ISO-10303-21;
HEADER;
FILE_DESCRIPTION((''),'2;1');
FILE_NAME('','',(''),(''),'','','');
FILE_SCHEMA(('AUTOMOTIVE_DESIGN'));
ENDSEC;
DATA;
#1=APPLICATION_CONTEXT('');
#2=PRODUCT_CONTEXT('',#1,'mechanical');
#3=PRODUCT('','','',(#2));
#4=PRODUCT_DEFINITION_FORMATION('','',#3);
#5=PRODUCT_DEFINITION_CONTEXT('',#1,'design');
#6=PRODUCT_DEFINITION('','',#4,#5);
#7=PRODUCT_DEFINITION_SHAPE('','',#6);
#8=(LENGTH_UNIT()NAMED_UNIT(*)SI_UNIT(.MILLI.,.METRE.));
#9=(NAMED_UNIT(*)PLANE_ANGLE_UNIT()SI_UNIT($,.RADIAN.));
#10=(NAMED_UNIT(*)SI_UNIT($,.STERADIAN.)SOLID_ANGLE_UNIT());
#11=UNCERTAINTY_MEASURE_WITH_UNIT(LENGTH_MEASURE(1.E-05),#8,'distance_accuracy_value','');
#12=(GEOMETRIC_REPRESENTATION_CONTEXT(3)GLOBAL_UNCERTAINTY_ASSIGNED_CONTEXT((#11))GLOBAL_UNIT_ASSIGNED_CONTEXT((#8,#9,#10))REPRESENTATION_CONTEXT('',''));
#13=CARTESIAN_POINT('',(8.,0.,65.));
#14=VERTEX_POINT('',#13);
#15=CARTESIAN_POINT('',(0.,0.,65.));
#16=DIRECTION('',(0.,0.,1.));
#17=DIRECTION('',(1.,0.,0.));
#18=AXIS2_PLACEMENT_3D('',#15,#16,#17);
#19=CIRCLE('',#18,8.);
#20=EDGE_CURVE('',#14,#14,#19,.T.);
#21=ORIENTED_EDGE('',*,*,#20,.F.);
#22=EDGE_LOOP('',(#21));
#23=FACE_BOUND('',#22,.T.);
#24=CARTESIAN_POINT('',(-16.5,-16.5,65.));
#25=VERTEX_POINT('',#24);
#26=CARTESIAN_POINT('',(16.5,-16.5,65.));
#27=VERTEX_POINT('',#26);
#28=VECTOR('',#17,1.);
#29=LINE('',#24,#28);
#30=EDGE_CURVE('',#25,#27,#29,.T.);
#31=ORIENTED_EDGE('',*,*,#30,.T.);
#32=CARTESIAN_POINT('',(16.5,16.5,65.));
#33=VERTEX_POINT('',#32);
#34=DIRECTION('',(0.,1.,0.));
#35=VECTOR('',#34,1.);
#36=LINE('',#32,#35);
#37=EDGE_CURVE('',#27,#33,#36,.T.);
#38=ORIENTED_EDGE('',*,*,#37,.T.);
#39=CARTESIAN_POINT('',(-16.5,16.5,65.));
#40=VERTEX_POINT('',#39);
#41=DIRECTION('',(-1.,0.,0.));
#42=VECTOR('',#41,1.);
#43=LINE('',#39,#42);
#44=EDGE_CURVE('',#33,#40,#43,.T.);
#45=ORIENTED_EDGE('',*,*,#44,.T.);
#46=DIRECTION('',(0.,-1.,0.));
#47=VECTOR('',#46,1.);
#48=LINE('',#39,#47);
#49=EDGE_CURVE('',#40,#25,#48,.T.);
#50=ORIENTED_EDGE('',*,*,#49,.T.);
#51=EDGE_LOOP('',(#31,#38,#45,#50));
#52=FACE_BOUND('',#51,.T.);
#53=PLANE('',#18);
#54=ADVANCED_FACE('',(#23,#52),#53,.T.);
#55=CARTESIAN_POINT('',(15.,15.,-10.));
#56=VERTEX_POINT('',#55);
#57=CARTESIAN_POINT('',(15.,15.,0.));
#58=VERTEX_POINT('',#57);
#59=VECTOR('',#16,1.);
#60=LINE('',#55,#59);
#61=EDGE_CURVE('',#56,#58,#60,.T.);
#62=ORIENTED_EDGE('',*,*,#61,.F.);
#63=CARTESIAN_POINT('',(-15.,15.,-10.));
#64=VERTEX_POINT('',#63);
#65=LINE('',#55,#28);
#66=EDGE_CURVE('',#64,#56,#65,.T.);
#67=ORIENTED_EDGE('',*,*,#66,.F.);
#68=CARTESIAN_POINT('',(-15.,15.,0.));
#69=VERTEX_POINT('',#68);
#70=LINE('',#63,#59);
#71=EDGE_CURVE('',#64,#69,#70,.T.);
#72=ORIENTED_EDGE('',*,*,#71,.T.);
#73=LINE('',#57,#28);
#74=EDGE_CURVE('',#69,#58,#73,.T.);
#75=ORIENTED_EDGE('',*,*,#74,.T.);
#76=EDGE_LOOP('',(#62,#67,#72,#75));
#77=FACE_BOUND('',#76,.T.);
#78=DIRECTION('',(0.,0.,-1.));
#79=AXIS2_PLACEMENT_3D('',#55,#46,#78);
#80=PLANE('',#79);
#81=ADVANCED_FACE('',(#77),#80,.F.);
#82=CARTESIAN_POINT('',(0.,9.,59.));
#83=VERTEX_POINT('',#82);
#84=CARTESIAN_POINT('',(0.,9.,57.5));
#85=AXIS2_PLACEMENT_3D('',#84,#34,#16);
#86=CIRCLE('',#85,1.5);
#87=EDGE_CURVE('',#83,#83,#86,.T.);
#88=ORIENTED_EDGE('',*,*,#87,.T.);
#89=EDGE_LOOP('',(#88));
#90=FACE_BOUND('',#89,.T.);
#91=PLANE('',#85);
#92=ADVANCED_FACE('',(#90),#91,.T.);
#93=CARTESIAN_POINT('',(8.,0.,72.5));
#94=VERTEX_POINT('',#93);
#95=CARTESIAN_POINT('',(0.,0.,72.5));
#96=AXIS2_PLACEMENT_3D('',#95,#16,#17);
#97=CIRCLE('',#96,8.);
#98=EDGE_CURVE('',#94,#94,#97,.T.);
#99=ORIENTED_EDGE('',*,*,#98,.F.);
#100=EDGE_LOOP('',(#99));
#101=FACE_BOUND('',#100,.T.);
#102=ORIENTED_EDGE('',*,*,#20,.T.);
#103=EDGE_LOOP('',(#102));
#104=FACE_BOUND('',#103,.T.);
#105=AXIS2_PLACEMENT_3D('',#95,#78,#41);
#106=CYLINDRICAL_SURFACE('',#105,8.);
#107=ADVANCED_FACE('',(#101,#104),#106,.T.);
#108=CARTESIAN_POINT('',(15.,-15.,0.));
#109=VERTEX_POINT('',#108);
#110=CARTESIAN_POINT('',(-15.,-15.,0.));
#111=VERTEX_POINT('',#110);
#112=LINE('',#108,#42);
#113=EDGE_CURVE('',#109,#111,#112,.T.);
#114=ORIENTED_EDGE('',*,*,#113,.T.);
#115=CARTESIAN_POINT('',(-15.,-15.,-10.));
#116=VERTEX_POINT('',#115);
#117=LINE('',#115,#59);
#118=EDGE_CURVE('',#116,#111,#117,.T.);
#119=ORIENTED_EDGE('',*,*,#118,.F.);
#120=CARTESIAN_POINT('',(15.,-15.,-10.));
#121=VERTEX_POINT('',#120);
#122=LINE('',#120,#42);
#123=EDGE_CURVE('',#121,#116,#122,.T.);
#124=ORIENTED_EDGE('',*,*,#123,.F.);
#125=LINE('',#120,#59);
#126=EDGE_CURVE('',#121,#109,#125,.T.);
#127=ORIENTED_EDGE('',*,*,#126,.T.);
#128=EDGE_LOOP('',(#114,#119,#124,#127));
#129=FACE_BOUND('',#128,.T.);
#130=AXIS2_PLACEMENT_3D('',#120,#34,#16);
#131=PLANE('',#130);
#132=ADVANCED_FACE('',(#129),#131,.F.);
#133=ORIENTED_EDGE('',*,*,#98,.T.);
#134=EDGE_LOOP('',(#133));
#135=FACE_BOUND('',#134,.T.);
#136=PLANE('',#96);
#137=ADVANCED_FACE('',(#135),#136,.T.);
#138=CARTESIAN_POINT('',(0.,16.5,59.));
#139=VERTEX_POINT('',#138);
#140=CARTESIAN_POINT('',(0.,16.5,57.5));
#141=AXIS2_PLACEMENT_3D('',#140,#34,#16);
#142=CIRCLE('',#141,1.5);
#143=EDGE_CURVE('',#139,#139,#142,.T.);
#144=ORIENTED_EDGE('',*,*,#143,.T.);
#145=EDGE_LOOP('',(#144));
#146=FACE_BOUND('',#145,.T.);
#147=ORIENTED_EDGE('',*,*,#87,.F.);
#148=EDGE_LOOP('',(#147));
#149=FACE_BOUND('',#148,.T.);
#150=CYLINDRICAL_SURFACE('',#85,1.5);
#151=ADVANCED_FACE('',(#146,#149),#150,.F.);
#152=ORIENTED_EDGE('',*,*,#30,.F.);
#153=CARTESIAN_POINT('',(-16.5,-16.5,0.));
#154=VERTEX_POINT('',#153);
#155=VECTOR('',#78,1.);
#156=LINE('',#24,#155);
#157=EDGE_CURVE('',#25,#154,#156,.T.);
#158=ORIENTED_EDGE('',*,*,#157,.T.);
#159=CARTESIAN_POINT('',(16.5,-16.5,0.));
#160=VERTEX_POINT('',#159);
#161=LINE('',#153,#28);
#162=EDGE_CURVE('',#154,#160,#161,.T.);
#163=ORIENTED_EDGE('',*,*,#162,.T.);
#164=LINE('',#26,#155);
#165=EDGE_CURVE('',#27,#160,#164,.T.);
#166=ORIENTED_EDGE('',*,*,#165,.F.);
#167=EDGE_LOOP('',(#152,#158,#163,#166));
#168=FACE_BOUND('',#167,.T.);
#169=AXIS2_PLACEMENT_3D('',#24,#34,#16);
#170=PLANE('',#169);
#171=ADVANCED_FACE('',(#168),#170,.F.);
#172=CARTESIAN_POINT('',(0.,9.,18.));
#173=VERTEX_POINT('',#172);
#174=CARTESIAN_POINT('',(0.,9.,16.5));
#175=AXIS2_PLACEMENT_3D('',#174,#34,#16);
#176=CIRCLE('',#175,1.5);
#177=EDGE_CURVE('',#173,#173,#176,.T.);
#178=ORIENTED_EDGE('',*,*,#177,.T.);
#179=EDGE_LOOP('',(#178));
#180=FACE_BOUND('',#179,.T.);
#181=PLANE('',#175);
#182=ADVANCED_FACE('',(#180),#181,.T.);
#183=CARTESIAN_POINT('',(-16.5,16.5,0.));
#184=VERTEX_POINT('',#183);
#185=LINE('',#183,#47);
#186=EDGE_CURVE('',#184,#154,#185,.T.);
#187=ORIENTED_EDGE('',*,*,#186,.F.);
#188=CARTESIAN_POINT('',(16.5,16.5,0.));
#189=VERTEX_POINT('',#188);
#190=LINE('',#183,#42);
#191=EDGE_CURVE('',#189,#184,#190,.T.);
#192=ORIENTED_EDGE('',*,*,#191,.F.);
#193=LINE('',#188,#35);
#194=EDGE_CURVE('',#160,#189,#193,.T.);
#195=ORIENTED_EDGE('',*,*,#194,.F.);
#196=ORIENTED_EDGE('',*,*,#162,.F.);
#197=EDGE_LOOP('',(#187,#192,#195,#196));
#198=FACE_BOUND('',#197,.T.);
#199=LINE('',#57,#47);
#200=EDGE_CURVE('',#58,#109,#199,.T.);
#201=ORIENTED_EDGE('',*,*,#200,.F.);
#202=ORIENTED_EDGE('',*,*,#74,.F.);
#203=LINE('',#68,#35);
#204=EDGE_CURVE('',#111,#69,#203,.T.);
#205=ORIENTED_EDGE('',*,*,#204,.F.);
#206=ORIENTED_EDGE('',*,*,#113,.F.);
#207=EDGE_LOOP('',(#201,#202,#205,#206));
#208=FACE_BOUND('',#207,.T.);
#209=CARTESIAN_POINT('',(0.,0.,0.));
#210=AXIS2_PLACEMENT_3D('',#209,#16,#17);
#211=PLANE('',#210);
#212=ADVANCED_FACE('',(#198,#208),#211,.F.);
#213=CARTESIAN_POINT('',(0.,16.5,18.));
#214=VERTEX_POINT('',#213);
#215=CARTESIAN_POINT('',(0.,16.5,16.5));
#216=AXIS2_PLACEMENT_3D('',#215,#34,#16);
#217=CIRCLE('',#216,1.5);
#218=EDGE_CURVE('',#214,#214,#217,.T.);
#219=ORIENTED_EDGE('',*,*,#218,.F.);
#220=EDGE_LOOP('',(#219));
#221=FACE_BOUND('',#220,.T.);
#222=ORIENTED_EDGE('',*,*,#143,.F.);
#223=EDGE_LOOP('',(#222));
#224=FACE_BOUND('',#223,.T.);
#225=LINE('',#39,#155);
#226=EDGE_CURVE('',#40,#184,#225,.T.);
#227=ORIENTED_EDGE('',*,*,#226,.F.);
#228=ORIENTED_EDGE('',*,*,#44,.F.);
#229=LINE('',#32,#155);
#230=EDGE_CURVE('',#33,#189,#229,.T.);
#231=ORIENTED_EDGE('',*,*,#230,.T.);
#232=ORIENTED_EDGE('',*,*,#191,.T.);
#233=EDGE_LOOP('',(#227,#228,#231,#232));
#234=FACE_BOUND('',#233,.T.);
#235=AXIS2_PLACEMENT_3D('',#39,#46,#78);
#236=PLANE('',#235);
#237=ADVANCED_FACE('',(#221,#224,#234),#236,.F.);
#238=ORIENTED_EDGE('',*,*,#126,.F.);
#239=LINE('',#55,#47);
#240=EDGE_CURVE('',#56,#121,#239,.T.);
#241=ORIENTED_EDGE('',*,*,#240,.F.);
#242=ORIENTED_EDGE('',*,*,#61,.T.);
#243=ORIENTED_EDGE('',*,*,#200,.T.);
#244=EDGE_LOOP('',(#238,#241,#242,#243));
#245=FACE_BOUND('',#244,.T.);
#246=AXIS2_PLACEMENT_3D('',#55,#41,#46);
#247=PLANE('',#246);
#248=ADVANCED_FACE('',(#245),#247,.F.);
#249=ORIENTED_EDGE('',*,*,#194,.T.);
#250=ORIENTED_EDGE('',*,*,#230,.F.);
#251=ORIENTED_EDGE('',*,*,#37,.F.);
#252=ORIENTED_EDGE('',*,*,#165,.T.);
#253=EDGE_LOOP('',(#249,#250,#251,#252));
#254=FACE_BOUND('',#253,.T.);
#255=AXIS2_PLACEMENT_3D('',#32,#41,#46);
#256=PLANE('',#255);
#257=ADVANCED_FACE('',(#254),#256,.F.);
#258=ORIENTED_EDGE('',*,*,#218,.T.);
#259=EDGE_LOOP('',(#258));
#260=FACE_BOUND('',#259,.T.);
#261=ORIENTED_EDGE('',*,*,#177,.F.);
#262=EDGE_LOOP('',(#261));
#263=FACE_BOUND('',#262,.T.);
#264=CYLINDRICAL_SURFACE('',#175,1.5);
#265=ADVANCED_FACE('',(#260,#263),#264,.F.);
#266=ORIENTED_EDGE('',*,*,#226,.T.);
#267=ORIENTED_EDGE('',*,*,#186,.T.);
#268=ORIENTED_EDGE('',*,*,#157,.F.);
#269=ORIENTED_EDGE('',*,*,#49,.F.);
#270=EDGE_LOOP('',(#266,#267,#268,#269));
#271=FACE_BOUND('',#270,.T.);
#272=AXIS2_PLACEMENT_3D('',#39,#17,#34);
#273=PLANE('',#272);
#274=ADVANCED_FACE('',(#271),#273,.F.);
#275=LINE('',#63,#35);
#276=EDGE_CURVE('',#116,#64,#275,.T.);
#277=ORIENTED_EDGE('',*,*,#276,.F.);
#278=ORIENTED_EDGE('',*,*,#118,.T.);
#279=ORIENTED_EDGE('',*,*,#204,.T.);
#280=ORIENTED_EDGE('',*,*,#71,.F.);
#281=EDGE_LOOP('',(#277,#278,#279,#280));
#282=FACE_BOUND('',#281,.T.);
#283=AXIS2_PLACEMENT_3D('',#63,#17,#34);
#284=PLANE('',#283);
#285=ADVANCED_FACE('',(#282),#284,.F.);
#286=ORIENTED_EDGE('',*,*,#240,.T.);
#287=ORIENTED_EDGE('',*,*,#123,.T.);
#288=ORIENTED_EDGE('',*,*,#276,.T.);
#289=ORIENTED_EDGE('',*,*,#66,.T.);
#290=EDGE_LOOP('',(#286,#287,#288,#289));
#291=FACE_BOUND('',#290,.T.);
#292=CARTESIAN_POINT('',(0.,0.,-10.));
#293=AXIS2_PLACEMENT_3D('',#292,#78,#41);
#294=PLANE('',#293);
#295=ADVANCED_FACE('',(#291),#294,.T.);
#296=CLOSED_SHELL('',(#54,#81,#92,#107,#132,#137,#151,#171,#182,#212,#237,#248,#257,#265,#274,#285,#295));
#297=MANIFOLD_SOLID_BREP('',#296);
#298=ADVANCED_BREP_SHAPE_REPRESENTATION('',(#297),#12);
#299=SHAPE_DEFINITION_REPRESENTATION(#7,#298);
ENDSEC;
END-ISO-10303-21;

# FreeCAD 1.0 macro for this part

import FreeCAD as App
import Part
import Sketcher

V = App.Vector
Q = App.Units.Quantity


def add_polygon(sketch, points):
    """Adds a closed chain of lines whose ends are joined by coincident constraints."""
    first, n = sketch.GeometryCount, len(points)
    for a, b in zip(points, points[1:] + points[:1]):
        sketch.addGeometry(Part.LineSegment(App.Vector(*a, 0), App.Vector(*b, 0)), False)
    for i in range(n):
        sketch.addConstraint(Sketcher.Constraint("Coincident", first + i, 2, first + (i + 1) % n, 1))

doc = App.newDocument("Part")
body = doc.addObject("PartDesign::Body", "Body")

sketch1 = body.newObject("Sketcher::SketchObject", "Sketch")
sketch1.AttachmentSupport = (doc.getObject("XY_Plane"), [""])
sketch1.MapMode = "FlatFace"
add_polygon(sketch1, [(-16.5, 16.5), (-16.5, -16.5), (16.5, -16.5), (16.5, 16.5)])
sketch1.addConstraint([
    Sketcher.Constraint("Vertical", 0),
    Sketcher.Constraint("Horizontal", 1),
    Sketcher.Constraint("Vertical", 2),
    Sketcher.Constraint("Horizontal", 3),
    Sketcher.Constraint("Symmetric", 0, 2, 2, 2, -1, 1),
    Sketcher.Constraint("Equal", 3, 0),
    Sketcher.Constraint("DistanceX", 1, 1, 1, 2, Q("33 mm")),
])
pad1 = body.newObject("PartDesign::Pad", "Pad")
pad1.Profile = sketch1
pad1.Length = 65

sketch2 = body.newObject("Sketcher::SketchObject", "Sketch001")
sketch2.AttachmentSupport = (doc.getObject("XY_Plane"), [""])
sketch2.MapMode = "FlatFace"
add_polygon(sketch2, [(15, 15), (15, -15), (-15, -15), (-15, 15)])
sketch2.addConstraint([
    Sketcher.Constraint("Vertical", 0),
    Sketcher.Constraint("Horizontal", 1),
    Sketcher.Constraint("Vertical", 2),
    Sketcher.Constraint("Horizontal", 3),
    Sketcher.Constraint("Symmetric", 0, 2, 2, 2, -1, 1),
    Sketcher.Constraint("Equal", 3, 0),
    Sketcher.Constraint("DistanceX", 1, 2, 1, 1, Q("30 mm")),
])
pad2 = body.newObject("PartDesign::Pad", "Pad001")
pad2.Profile = sketch2
pad2.Length = 10
pad2.Reversed = True

sketch3 = body.newObject("Sketcher::SketchObject", "Sketch002")
sketch3.AttachmentSupport = (doc.getObject("XY_Plane"), [""])
sketch3.MapMode = "FlatFace"
sketch3.AttachmentOffset = App.Placement(V(0, 0, 65), App.Rotation())
sketch3.addGeometry(Part.Circle(V(0, 0, 0), V(0, 0, 1), 8), False)
sketch3.addConstraint([
    Sketcher.Constraint("Coincident", 0, 3, -1, 1),
    Sketcher.Constraint("Diameter", 0, Q("16 mm")),
])
pad3 = body.newObject("PartDesign::Pad", "Pad002")
pad3.Profile = sketch3
pad3.Length = 7.5

sketch4 = body.newObject("Sketcher::SketchObject", "Sketch003")
sketch4.AttachmentSupport = (doc.getObject("XZ_Plane"), [""])
sketch4.MapMode = "FlatFace"
sketch4.AttachmentOffset = App.Placement(V(0, 0, -16.5), App.Rotation())
sketch4.addGeometry([
    Part.Circle(V(0, 16.5, 0), V(0, 0, 1), 1.5),
    Part.Circle(V(0, 57.5, 0), V(0, 0, 1), 1.5),
], False)
sketch4.addConstraint([
    Sketcher.Constraint("Equal", 0, 1),
    Sketcher.Constraint("PointOnObject", 0, 3, -2),
    Sketcher.Constraint("PointOnObject", 1, 3, -2),
    Sketcher.Constraint("Diameter", 0, Q("3 mm")),
    Sketcher.Constraint("DistanceY", 0, 3, 1, 3, Q("41 mm")),
    Sketcher.Constraint("DistanceY", -1, 1, 0, 3, Q("16.5 mm")),
])
pocket1 = body.newObject("PartDesign::Pocket", "Pocket")
pocket1.Profile = sketch4
pocket1.Length = 7.5
pocket1.Reversed = True

doc.recompute()
